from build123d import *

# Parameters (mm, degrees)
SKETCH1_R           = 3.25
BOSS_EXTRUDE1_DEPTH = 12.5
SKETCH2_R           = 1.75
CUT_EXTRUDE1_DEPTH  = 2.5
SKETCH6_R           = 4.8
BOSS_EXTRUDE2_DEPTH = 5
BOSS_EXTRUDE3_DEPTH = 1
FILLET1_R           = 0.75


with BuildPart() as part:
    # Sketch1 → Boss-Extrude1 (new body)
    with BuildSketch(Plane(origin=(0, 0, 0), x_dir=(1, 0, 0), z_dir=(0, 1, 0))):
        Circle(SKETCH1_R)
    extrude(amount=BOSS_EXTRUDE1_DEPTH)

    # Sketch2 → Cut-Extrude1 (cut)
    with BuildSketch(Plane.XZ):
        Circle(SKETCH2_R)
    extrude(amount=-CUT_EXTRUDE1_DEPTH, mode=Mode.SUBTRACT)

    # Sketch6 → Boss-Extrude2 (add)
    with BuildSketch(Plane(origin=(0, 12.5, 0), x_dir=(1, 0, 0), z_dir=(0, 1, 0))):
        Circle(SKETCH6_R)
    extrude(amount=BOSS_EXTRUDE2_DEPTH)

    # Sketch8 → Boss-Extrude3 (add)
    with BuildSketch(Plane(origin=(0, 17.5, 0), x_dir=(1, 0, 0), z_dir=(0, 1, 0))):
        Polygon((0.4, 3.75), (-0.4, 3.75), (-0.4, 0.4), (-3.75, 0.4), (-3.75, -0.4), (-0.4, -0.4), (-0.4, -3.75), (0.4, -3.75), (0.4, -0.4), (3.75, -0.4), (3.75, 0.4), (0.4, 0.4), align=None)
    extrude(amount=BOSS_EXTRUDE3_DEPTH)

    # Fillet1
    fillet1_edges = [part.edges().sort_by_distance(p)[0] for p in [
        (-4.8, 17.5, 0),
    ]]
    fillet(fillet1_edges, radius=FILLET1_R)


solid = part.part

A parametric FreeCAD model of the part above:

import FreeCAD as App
import Part
import Sketcher
Q = App.Units.Quantity


def edges_at(feature, points):
    """Names of the edges that pass closest to the given points."""
    edges = feature.Shape.Edges
    near = lambda p: min(range(len(edges)), key=lambda i: edges[i].distToShape(Part.Vertex(*p))[0])
    return sorted({f"Edge{near(p) + 1}" for p in points})


def add_polygon(sketch, points):
    """Adds a closed chain of lines whose ends are joined by coincident constraints."""
    first, n = sketch.GeometryCount, len(points)
    for a, b in zip(points, points[1:] + points[:1]):
        sketch.addGeometry(Part.LineSegment(App.Vector(*a, 0), App.Vector(*b, 0)), False)
    for i in range(n):
        sketch.addConstraint(Sketcher.Constraint("Coincident", first + i, 2, first + (i + 1) % n, 1))

doc = App.newDocument("Part")
body = doc.addObject("PartDesign::Body", "Body")

# Sketch on XZ plane
sketch1 = body.newObject("Sketcher::SketchObject", "Sketch")
sketch1.AttachmentSupport = (doc.getObject("XZ_Plane"), [""])
sketch1.MapMode = "FlatFace"
sketch1.addGeometry(Part.Circle(App.Vector(0, 0, 0), App.Vector(0, 0, 1), 3.2), False)
sketch1.addConstraint(Sketcher.Constraint("Coincident", 0, 3, -1, 1))
sketch1.addConstraint(Sketcher.Constraint("Diameter", 0, Q("6.5 mm")))
pad1 = body.newObject("PartDesign::Pad", "Pad")
pad1.Profile = sketch1
pad1.Length = 12.5
pad1.Reversed = True

# Sketch on XZ plane
sketch2 = body.newObject("Sketcher::SketchObject", "Sketch001")
sketch2.AttachmentSupport = (doc.getObject("XZ_Plane"), [""])
sketch2.MapMode = "FlatFace"
sketch2.addGeometry(Part.Circle(App.Vector(0, 0, 0), App.Vector(0, 0, 1), 1.8), False)
sketch2.addConstraint(Sketcher.Constraint("Coincident", 0, 3, -1, 1))
sketch2.addConstraint(Sketcher.Constraint("Diameter", 0, Q("3.5 mm")))
pocket1 = body.newObject("PartDesign::Pocket", "Pocket")
pocket1.Profile = sketch2
pocket1.Length = 2.5

# Sketch on XZ plane
sketch3 = body.newObject("Sketcher::SketchObject", "Sketch002")
sketch3.AttachmentSupport = (doc.getObject("XZ_Plane"), [""])
sketch3.MapMode = "FlatFace"
sketch3.AttachmentOffset = App.Placement(App.Vector(0, 0, -12.5), App.Rotation())
sketch3.addGeometry(Part.Circle(App.Vector(0, 0, 0), App.Vector(0, 0, 1), 4.8), False)
sketch3.addConstraint(Sketcher.Constraint("Coincident", 0, 3, -1, 1))
sketch3.addConstraint(Sketcher.Constraint("Diameter", 0, Q("9.6 mm")))
pad2 = body.newObject("PartDesign::Pad", "Pad001")
pad2.Profile = sketch3
pad2.Length = 5
pad2.Reversed = True

# Sketch on XZ plane
sketch4 = body.newObject("Sketcher::SketchObject", "Sketch003")
sketch4.AttachmentSupport = (doc.getObject("XZ_Plane"), [""])
sketch4.MapMode = "FlatFace"
sketch4.AttachmentOffset = App.Placement(App.Vector(0, 0, -17.5), App.Rotation())
add_polygon(sketch4, [(0.4, -3.8), (-0.4, -3.8), (-0.4, -0.4), (-3.8, -0.4), (-3.8, 0.4), (-0.4, 0.4), (-0.4, 3.8), (0.4, 3.8), (0.4, 0.4), (3.8, 0.4), (3.8, -0.4), (0.4, -0.4)])  # lines 0-11
sketch4.addConstraint(Sketcher.Constraint("Horizontal", 0))
sketch4.addConstraint(Sketcher.Constraint("Vertical", 1))
sketch4.addConstraint(Sketcher.Constraint("Horizontal", 2))
sketch4.addConstraint(Sketcher.Constraint("Vertical", 3))
sketch4.addConstraint(Sketcher.Constraint("Horizontal", 4))
sketch4.addConstraint(Sketcher.Constraint("Vertical", 5))
sketch4.addConstraint(Sketcher.Constraint("Horizontal", 6))
sketch4.addConstraint(Sketcher.Constraint("Vertical", 7))
sketch4.addConstraint(Sketcher.Constraint("Horizontal", 8))
sketch4.addConstraint(Sketcher.Constraint("Vertical", 9))
sketch4.addConstraint(Sketcher.Constraint("Horizontal", 10))
sketch4.addConstraint(Sketcher.Constraint("Vertical", 11))
sketch4.addConstraint(Sketcher.Constraint("Symmetric", 0, 2, 6, 2, -1, 1))
sketch4.addConstraint(Sketcher.Constraint("Symmetric", 2, 2, 8, 2, -1, 1))
sketch4.addConstraint(Sketcher.Constraint("Symmetric", 4, 2, 10, 2, -1, 1))
sketch4.addConstraint(Sketcher.Constraint("Symmetric", 4, 2, 7, 2, -2))
sketch4.addConstraint(Sketcher.Constraint("Equal", 10, 1))
sketch4.addConstraint(Sketcher.Constraint("Equal", 6, 3))
sketch4.addConstraint(Sketcher.Constraint("DistanceX", 0, 2, 0, 1, Q("0.8 mm")))
sketch4.addConstraint(Sketcher.Constraint("DistanceX", 2, 2, 2, 1, Q("3.35 mm")))
pad3 = body.newObject("PartDesign::Pad", "Pad002")
pad3.Profile = sketch4
pad3.Length = 1
pad3.Reversed = True
doc.recompute()

fillet = body.newObject("PartDesign::Fillet", "Fillet")
fillet.Base = (pad3, edges_at(pad3, [(-4.8, 17.5, 0)]))
fillet.Radius = 0.75

doc.recompute()
